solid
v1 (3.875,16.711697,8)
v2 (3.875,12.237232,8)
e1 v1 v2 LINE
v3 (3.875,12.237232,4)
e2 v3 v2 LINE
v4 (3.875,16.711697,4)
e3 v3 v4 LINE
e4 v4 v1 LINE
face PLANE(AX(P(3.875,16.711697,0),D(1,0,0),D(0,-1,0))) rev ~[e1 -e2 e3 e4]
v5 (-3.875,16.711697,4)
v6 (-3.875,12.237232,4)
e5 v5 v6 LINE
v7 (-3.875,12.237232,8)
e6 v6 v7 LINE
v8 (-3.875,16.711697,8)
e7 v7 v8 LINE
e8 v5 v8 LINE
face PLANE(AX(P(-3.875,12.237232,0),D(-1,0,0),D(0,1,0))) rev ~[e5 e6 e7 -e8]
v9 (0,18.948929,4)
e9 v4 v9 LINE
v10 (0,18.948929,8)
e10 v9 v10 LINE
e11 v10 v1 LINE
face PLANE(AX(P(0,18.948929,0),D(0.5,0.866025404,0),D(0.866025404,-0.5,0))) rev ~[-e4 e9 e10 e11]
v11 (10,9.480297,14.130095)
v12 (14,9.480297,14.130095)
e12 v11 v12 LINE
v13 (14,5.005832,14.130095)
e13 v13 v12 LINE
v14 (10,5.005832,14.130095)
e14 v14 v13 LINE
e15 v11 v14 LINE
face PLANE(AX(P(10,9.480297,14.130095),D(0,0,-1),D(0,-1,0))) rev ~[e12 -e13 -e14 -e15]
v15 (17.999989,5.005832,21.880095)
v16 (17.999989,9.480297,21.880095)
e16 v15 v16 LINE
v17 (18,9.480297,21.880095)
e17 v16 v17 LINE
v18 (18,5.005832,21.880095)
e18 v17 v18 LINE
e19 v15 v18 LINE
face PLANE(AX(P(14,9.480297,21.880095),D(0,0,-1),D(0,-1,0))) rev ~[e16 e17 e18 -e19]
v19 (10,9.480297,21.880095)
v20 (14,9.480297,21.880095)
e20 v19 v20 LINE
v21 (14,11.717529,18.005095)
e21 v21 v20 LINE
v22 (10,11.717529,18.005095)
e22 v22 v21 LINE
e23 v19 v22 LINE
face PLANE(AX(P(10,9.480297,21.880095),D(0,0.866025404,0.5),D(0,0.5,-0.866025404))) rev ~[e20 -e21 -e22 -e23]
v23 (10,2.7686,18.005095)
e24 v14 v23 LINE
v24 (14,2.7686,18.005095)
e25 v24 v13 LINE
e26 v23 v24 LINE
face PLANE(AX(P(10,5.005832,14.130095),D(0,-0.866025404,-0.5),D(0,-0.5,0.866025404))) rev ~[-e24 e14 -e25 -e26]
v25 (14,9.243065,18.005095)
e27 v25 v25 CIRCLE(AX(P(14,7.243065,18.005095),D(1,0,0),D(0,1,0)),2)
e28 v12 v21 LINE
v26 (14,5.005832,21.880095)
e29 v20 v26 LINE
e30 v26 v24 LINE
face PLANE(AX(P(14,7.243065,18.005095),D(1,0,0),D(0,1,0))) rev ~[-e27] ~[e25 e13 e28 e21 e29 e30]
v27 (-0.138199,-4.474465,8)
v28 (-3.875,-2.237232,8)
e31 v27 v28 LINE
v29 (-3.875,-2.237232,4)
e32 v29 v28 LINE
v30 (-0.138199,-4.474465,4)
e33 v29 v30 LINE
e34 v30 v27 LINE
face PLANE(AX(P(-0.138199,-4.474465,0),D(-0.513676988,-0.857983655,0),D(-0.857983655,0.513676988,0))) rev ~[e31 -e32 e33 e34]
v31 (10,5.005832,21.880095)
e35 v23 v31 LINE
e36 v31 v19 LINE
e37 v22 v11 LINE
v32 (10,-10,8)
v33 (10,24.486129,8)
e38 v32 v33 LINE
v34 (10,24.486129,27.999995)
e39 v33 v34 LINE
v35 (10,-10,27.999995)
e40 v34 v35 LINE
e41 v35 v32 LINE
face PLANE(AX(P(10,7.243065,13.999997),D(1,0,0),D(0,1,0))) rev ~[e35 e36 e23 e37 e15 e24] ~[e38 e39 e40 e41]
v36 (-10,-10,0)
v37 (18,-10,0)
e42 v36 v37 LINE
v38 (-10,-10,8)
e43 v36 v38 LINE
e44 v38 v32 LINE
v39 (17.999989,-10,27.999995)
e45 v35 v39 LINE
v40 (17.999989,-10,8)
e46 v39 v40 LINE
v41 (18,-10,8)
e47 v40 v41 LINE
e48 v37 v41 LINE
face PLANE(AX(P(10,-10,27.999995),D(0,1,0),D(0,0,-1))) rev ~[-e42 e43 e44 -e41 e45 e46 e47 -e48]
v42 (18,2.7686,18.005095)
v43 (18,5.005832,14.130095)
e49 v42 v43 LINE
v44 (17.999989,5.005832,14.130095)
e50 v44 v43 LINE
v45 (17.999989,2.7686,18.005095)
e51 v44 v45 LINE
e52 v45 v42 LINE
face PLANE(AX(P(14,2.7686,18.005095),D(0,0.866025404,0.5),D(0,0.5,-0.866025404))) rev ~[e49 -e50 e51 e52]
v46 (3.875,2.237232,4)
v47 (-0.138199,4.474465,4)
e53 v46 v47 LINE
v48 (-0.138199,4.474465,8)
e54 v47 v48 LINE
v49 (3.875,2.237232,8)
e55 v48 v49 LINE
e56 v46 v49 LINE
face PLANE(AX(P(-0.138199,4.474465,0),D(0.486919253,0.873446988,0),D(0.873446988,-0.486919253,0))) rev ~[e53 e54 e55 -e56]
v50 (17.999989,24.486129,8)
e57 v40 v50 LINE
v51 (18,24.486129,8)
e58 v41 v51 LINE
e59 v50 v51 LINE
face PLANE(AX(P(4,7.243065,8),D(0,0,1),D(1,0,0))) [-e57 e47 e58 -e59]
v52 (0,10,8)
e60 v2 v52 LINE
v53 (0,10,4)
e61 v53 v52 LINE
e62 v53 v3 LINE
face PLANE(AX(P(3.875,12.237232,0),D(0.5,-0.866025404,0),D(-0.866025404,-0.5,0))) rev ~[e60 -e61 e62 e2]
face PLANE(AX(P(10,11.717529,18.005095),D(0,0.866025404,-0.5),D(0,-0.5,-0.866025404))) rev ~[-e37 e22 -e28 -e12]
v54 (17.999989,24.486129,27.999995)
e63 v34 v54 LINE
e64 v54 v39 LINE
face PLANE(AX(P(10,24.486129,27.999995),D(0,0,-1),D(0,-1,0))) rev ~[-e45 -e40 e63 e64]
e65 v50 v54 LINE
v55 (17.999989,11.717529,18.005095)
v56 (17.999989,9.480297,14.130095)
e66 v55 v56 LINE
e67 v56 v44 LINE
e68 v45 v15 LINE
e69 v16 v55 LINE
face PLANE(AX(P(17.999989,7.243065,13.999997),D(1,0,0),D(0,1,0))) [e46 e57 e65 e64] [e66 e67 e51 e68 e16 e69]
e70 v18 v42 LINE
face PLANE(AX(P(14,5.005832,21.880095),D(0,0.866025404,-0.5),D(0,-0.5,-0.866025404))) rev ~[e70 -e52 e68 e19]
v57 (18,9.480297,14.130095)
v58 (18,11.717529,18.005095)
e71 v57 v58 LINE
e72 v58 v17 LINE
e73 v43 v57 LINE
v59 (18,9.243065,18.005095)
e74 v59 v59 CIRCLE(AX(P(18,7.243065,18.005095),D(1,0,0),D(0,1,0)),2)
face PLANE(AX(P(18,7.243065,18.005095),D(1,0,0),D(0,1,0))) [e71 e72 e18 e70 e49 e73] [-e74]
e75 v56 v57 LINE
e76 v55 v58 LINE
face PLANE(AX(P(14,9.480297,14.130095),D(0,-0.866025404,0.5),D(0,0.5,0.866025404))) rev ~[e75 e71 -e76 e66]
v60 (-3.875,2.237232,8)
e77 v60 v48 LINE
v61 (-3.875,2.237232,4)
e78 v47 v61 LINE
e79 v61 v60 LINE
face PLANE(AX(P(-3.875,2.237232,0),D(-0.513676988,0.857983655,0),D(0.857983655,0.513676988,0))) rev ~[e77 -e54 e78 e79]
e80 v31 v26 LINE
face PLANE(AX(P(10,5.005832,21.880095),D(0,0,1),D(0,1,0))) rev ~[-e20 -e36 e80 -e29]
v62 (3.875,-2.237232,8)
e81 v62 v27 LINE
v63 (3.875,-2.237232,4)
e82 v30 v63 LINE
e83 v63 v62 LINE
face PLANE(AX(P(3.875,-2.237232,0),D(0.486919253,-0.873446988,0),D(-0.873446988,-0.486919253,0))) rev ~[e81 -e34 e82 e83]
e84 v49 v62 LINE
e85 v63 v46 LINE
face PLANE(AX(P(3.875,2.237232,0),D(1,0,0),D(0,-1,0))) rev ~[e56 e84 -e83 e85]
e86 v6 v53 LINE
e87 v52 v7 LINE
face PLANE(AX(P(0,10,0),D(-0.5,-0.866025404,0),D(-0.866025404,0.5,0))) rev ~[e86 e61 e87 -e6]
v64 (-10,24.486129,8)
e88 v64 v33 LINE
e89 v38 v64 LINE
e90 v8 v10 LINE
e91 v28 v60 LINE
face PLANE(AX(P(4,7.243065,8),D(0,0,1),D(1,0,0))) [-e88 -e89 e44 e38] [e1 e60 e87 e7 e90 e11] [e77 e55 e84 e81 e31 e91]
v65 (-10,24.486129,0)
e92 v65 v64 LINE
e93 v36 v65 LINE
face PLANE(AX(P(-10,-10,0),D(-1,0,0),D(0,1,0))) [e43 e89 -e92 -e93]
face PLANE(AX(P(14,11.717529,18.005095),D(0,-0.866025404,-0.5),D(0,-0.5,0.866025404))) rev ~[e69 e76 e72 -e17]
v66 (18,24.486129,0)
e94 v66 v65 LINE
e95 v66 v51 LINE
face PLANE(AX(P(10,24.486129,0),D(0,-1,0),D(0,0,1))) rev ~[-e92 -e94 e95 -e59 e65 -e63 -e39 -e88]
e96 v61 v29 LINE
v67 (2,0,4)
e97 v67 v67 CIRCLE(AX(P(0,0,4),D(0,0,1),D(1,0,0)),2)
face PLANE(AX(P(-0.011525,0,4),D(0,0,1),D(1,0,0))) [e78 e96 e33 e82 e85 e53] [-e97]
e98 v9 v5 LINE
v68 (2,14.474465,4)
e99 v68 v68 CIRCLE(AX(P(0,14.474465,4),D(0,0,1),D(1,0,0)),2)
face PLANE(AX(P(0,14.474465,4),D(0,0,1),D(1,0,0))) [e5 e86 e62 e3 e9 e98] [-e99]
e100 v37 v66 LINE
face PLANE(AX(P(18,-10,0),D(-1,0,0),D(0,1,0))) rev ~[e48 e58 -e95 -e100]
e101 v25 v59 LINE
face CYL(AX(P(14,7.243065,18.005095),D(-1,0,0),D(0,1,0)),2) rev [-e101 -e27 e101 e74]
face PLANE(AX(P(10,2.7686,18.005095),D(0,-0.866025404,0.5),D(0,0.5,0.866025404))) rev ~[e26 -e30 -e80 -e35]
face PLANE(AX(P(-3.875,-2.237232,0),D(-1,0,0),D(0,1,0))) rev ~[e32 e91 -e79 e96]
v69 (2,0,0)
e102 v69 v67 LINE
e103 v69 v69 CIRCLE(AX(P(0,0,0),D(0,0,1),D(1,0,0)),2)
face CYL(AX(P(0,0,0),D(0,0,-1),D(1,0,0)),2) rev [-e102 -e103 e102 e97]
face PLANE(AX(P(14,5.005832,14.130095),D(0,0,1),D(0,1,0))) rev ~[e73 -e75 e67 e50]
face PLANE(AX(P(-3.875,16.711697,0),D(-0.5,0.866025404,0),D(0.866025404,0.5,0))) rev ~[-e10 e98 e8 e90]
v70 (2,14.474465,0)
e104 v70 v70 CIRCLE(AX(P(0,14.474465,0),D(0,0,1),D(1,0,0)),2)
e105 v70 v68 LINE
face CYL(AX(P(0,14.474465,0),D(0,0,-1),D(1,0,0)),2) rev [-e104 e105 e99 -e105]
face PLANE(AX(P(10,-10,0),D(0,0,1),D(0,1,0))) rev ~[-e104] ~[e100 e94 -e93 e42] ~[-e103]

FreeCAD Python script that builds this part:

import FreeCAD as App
import Part
import Sketcher
Q = App.Units.Quantity

doc = App.newDocument("Part")
body = doc.addObject("PartDesign::Body", "Body")

sketch1 = doc.addObject("Sketcher::SketchObject", "Sketch")
body.addObject(sketch1)
sketch1.AttachmentSupport = (doc.XY_Plane, [""])
sketch1.MapMode = "FlatFace"
sketch1.addGeometry(Part.LineSegment(App.Vector(-10, 24.5, 0), App.Vector(-10, -10, 0)), False)
sketch1.addGeometry(Part.LineSegment(App.Vector(-10, -10, 0), App.Vector(18, -10, 0)), False)
sketch1.addGeometry(Part.LineSegment(App.Vector(18, -10, 0), App.Vector(18, 24.5, 0)), False)
sketch1.addGeometry(Part.LineSegment(App.Vector(18, 24.5, 0), App.Vector(-10, 24.5, 0)), False)
sketch1.addGeometry(Part.LineSegment(App.Vector(-0.1, 4.5, 0), App.Vector(3.9, 2.2, 0)), False)
sketch1.addGeometry(Part.LineSegment(App.Vector(3.9, 2.2, 0), App.Vector(3.9, -2.2, 0)), False)
sketch1.addGeometry(Part.LineSegment(App.Vector(3.9, -2.2, 0), App.Vector(-0.1, -4.5, 0)), False)
sketch1.addGeometry(Part.LineSegment(App.Vector(-0.1, -4.5, 0), App.Vector(-3.9, -2.2, 0)), False)
sketch1.addGeometry(Part.LineSegment(App.Vector(-3.9, -2.2, 0), App.Vector(-3.9, 2.2, 0)), False)
sketch1.addGeometry(Part.LineSegment(App.Vector(-3.9, 2.2, 0), App.Vector(-0.1, 4.5, 0)), False)
sketch1.addGeometry(Part.LineSegment(App.Vector(0, 18.9, 0), App.Vector(3.9, 16.7, 0)), False)
sketch1.addGeometry(Part.LineSegment(App.Vector(3.9, 16.7, 0), App.Vector(3.9, 12.2, 0)), False)
sketch1.addGeometry(Part.LineSegment(App.Vector(3.9, 12.2, 0), App.Vector(0, 10, 0)), False)
sketch1.addGeometry(Part.LineSegment(App.Vector(0, 10, 0), App.Vector(-3.9, 12.2, 0)), False)
sketch1.addGeometry(Part.LineSegment(App.Vector(-3.9, 12.2, 0), App.Vector(-3.9, 16.7, 0)), False)
sketch1.addGeometry(Part.LineSegment(App.Vector(-3.9, 16.7, 0), App.Vector(0, 18.9, 0)), False)
sketch1.addConstraint(Sketcher.Constraint("Coincident", 0, 2, 1, 1))
sketch1.addConstraint(Sketcher.Constraint("Coincident", 1, 2, 2, 1))
sketch1.addConstraint(Sketcher.Constraint("Coincident", 2, 2, 3, 1))
sketch1.addConstraint(Sketcher.Constraint("Coincident", 3, 2, 0, 1))
sketch1.addConstraint(Sketcher.Constraint("Coincident", 4, 2, 5, 1))
sketch1.addConstraint(Sketcher.Constraint("Coincident", 5, 2, 6, 1))
sketch1.addConstraint(Sketcher.Constraint("Coincident", 6, 2, 7, 1))
sketch1.addConstraint(Sketcher.Constraint("Coincident", 7, 2, 8, 1))
sketch1.addConstraint(Sketcher.Constraint("Coincident", 8, 2, 9, 1))
sketch1.addConstraint(Sketcher.Constraint("Coincident", 9, 2, 4, 1))
sketch1.addConstraint(Sketcher.Constraint("Coincident", 10, 2, 11, 1))
sketch1.addConstraint(Sketcher.Constraint("Coincident", 11, 2, 12, 1))
sketch1.addConstraint(Sketcher.Constraint("Coincident", 12, 2, 13, 1))
sketch1.addConstraint(Sketcher.Constraint("Coincident", 13, 2, 14, 1))
sketch1.addConstraint(Sketcher.Constraint("Coincident", 14, 2, 15, 1))
sketch1.addConstraint(Sketcher.Constraint("Coincident", 15, 2, 10, 1))
sketch1.addConstraint(Sketcher.Constraint("Vertical", 0))
sketch1.addConstraint(Sketcher.Constraint("Horizontal", 1))
sketch1.addConstraint(Sketcher.Constraint("Vertical", 2))
sketch1.addConstraint(Sketcher.Constraint("Horizontal", 3))
sketch1.addConstraint(Sketcher.Constraint("Vertical", 5))
sketch1.addConstraint(Sketcher.Constraint("Vertical", 8))
sketch1.addConstraint(Sketcher.Constraint("Vertical", 11))
sketch1.addConstraint(Sketcher.Constraint("Vertical", 14))
sketch1.addConstraint(Sketcher.Constraint("Symmetric", 4, 2, 7, 2, -1, 1))
sketch1.addConstraint(Sketcher.Constraint("Symmetric", 11, 2, 13, 2, -2))
sketch1.addConstraint(Sketcher.Constraint("Symmetric", 6, 2, 9, 2, -1))
sketch1.addConstraint(Sketcher.Constraint("PointOnObject", 12, 2, -2))
sketch1.addConstraint(Sketcher.Constraint("PointOnObject", 15, 2, -2))
sketch1.addConstraint(Sketcher.Constraint("Parallel", 10, 13))
sketch1.addConstraint(Sketcher.Constraint("Parallel", 12, 15))
sketch1.addConstraint(Sketcher.Constraint("Horizontal", 5, 2, 7, 2))
sketch1.addConstraint(Sketcher.Constraint("Horizontal", 4, 2, 8, 2))
sketch1.addConstraint(Sketcher.Constraint("Vertical", 5, 2, 10, 2))
sketch1.addConstraint(Sketcher.Constraint("Equal", 8, 11))
sketch1.addConstraint(Sketcher.Constraint("DistanceX", 1, 1, 1, 2, 28.0))
sketch1.addConstraint(Sketcher.Constraint("Angle", 10, Q("-30 deg")))
sketch1.addConstraint(Sketcher.Constraint("DistanceX", 0, 2, -1, 1, 10.0))
sketch1.addConstraint(Sketcher.Constraint("DistanceY", 0, 2, -1, 1, 10.0))
sketch1.addConstraint(Sketcher.Constraint("DistanceY", -1, 1, 12, 2, 10.0))
sketch1.addConstraint(Sketcher.Constraint("DistanceY", 4, 2, 11, 2, 10.0))
sketch1.addConstraint(Sketcher.Constraint("DistanceX", 7, 2, 5, 2, 7.75))
sketch1.addConstraint(Sketcher.Constraint("DistanceY", 0, 2, 0, 1, 34.486129))
sketch1.addConstraint(Sketcher.Constraint("DistanceX", 6, 2, -1, 1, 0.138199))
sketch1.addConstraint(Sketcher.Constraint("Distance", 7, 4.355329))
pad1 = doc.addObject("PartDesign::Pad", "Pad")
body.addObject(pad1)
pad1.Profile = sketch1
pad1.Length = 8

sketch2 = doc.addObject("Sketcher::SketchObject", "Sketch001")
body.addObject(sketch2)
sketch2.AttachmentSupport = (doc.XY_Plane, [""])
sketch2.MapMode = "FlatFace"
sketch2.addGeometry(Part.LineSegment(App.Vector(0, 10, 0), App.Vector(3.9, 12.2, 0)), False)
sketch2.addGeometry(Part.LineSegment(App.Vector(3.9, 12.2, 0), App.Vector(3.9, 16.7, 0)), False)
sketch2.addGeometry(Part.LineSegment(App.Vector(3.9, 16.7, 0), App.Vector(0, 18.9, 0)), False)
sketch2.addGeometry(Part.LineSegment(App.Vector(0, 18.9, 0), App.Vector(-3.9, 16.7, 0)), False)
sketch2.addGeometry(Part.LineSegment(App.Vector(-3.9, 16.7, 0), App.Vector(-3.9, 12.2, 0)), False)
sketch2.addGeometry(Part.LineSegment(App.Vector(-3.9, 12.2, 0), App.Vector(0, 10, 0)), False)
sketch2.addGeometry(Part.Circle(App.Vector(0, 14.5, 0), App.Vector(0, 0, 1), 2), False)
sketch2.addGeometry(Part.LineSegment(App.Vector(-0.1, -4.5, 0), App.Vector(3.9, -2.2, 0)), False)
sketch2.addGeometry(Part.LineSegment(App.Vector(3.9, -2.2, 0), App.Vector(3.9, 2.2, 0)), False)
sketch2.addGeometry(Part.LineSegment(App.Vector(3.9, 2.2, 0), App.Vector(-0.1, 4.5, 0)), False)
sketch2.addGeometry(Part.LineSegment(App.Vector(-0.1, 4.5, 0), App.Vector(-3.9, 2.2, 0)), False)
sketch2.addGeometry(Part.LineSegment(App.Vector(-3.9, 2.2, 0), App.Vector(-3.9, -2.2, 0)), False)
sketch2.addGeometry(Part.LineSegment(App.Vector(-3.9, -2.2, 0), App.Vector(-0.1, -4.5, 0)), False)
sketch2.addGeometry(Part.Circle(App.Vector(0, 0, 0), App.Vector(0, 0, 1), 2), False)
sketch2.addConstraint(Sketcher.Constraint("Coincident", 0, 2, 1, 1))
sketch2.addConstraint(Sketcher.Constraint("Coincident", 1, 2, 2, 1))
sketch2.addConstraint(Sketcher.Constraint("Coincident", 2, 2, 3, 1))
sketch2.addConstraint(Sketcher.Constraint("Coincident", 3, 2, 4, 1))
sketch2.addConstraint(Sketcher.Constraint("Coincident", 4, 2, 5, 1))
sketch2.addConstraint(Sketcher.Constraint("Coincident", 5, 2, 0, 1))
sketch2.addConstraint(Sketcher.Constraint("Coincident", 7, 2, 8, 1))
sketch2.addConstraint(Sketcher.Constraint("Coincident", 8, 2, 9, 1))
sketch2.addConstraint(Sketcher.Constraint("Coincident", 9, 2, 10, 1))
sketch2.addConstraint(Sketcher.Constraint("Coincident", 10, 2, 11, 1))
sketch2.addConstraint(Sketcher.Constraint("Coincident", 11, 2, 12, 1))
sketch2.addConstraint(Sketcher.Constraint("Coincident", 12, 2, 7, 1))
sketch2.addConstraint(Sketcher.Constraint("Vertical", 1))
sketch2.addConstraint(Sketcher.Constraint("Vertical", 4))
sketch2.addConstraint(Sketcher.Constraint("Vertical", 8))
sketch2.addConstraint(Sketcher.Constraint("Vertical", 11))
sketch2.addConstraint(Sketcher.Constraint("Coincident", 13, 3, -1, 1))
sketch2.addConstraint(Sketcher.Constraint("Equal", 6, 13))
sketch2.addConstraint(Sketcher.Constraint("Symmetric", 7, 2, 10, 2, -1, 1))
sketch2.addConstraint(Sketcher.Constraint("Symmetric", 1, 2, 3, 2, -2))
sketch2.addConstraint(Sketcher.Constraint("Symmetric", 9, 2, 12, 2, -1))
sketch2.addConstraint(Sketcher.Constraint("PointOnObject", 6, 3, -2))
sketch2.addConstraint(Sketcher.Constraint("PointOnObject", 2, 2, -2))
sketch2.addConstraint(Sketcher.Constraint("PointOnObject", 5, 2, -2))
sketch2.addConstraint(Sketcher.Constraint("Parallel", 0, 3))
sketch2.addConstraint(Sketcher.Constraint("Parallel", 2, 5))
sketch2.addConstraint(Sketcher.Constraint("Horizontal", 8, 2, 10, 2))
sketch2.addConstraint(Sketcher.Constraint("Horizontal", 7, 2, 11, 2))
sketch2.addConstraint(Sketcher.Constraint("Vertical", 1, 2, 7, 2))
sketch2.addConstraint(Sketcher.Constraint("Equal", 4, 8))
sketch2.addConstraint(Sketcher.Constraint("Diameter", 6, 4.0))
sketch2.addConstraint(Sketcher.Constraint("Angle", 0, Q("30 deg")))
sketch2.addConstraint(Sketcher.Constraint("DistanceY", -1, 1, 5, 2, 10.0))
sketch2.addConstraint(Sketcher.Constraint("DistanceY", 8, 2, 0, 2, 10.0))
sketch2.addConstraint(Sketcher.Constraint("DistanceX", 3, 2, 1, 2, 7.75))
sketch2.addConstraint(Sketcher.Constraint("DistanceX", 9, 2, -1, 1, 0.138199))
sketch2.addConstraint(Sketcher.Constraint("Distance", 10, 4.355329))
sketch2.addConstraint(Sketcher.Constraint("DistanceY", -1, 1, 6, 3, 14.474465))
pad2 = doc.addObject("PartDesign::Pad", "Pad001")
body.addObject(pad2)
pad2.Profile = sketch2
pad2.Length = 4

sketch3 = doc.addObject("Sketcher::SketchObject", "Sketch002")
body.addObject(sketch3)
sketch3.AttachmentSupport = (doc.YZ_Plane, [""])
sketch3.MapMode = "FlatFace"
sketch3.AttachmentOffset = App.Placement(App.Vector(0, 0, 10), App.Rotation())
sketch3.addGeometry(Part.LineSegment(App.Vector(-10, 28, 0), App.Vector(-10, 0, 0)), False)
sketch3.addGeometry(Part.LineSegment(App.Vector(-10, 0, 0), App.Vector(24.5, 0, 0)), False)
sketch3.addGeometry(Part.LineSegment(App.Vector(24.5, 0, 0), App.Vector(24.5, 28, 0)), False)
sketch3.addGeometry(Part.LineSegment(App.Vector(24.5, 28, 0), App.Vector(-10, 28, 0)), False)
sketch3.addGeometry(Part.LineSegment(App.Vector(5, 14.1, 0), App.Vector(2.8, 18, 0)), False)
sketch3.addGeometry(Part.LineSegment(App.Vector(2.8, 18, 0), App.Vector(5, 21.9, 0)), False)
sketch3.addGeometry(Part.LineSegment(App.Vector(5, 21.9, 0), App.Vector(9.5, 21.9, 0)), False)
sketch3.addGeometry(Part.LineSegment(App.Vector(9.5, 21.9, 0), App.Vector(11.7, 18, 0)), False)
sketch3.addGeometry(Part.LineSegment(App.Vector(11.7, 18, 0), App.Vector(9.5, 14.1, 0)), False)
sketch3.addGeometry(Part.LineSegment(App.Vector(9.5, 14.1, 0), App.Vector(5, 14.1, 0)), False)
sketch3.addConstraint(Sketcher.Constraint("Coincident", 0, 2, 1, 1))
sketch3.addConstraint(Sketcher.Constraint("Coincident", 1, 2, 2, 1))
sketch3.addConstraint(Sketcher.Constraint("Coincident", 2, 2, 3, 1))
sketch3.addConstraint(Sketcher.Constraint("Coincident", 3, 2, 0, 1))
sketch3.addConstraint(Sketcher.Constraint("Coincident", 4, 2, 5, 1))
sketch3.addConstraint(Sketcher.Constraint("Coincident", 5, 2, 6, 1))
sketch3.addConstraint(Sketcher.Constraint("Coincident", 6, 2, 7, 1))
sketch3.addConstraint(Sketcher.Constraint("Coincident", 7, 2, 8, 1))
sketch3.addConstraint(Sketcher.Constraint("Coincident", 8, 2, 9, 1))
sketch3.addConstraint(Sketcher.Constraint("Coincident", 9, 2, 4, 1))
sketch3.addConstraint(Sketcher.Constraint("Vertical", 0))
sketch3.addConstraint(Sketcher.Constraint("Horizontal", 1))
sketch3.addConstraint(Sketcher.Constraint("Vertical", 2))
sketch3.addConstraint(Sketcher.Constraint("Horizontal", 3))
sketch3.addConstraint(Sketcher.Constraint("Horizontal", 6))
sketch3.addConstraint(Sketcher.Constraint("Horizontal", 9))
sketch3.addConstraint(Sketcher.Constraint("PointOnObject", 0, 2, -1))
sketch3.addConstraint(Sketcher.Constraint("Parallel", 4, 7))
sketch3.addConstraint(Sketcher.Constraint("Parallel", 5, 8))
sketch3.addConstraint(Sketcher.Constraint("Horizontal", 4, 2, 7, 2))
sketch3.addConstraint(Sketcher.Constraint("Vertical", 6, 2, 8, 2))
sketch3.addConstraint(Sketcher.Constraint("Vertical", 5, 2, 9, 2))
sketch3.addConstraint(Sketcher.Constraint("Angle", 4, Q("120 deg")))
sketch3.addConstraint(Sketcher.Constraint("DistanceX", 0, 2, -1, 1, 10.0))
sketch3.addConstraint(Sketcher.Constraint("DistanceY", 8, 2, 6, 2, 7.75))
sketch3.addConstraint(Sketcher.Constraint("DistanceX", 1, 1, 1, 2, 34.486129))
sketch3.addConstraint(Sketcher.Constraint("DistanceX", -1, 1, 4, 2, 2.7686))
sketch3.addConstraint(Sketcher.Constraint("DistanceY", 4, 2, 3, 2, 9.9949))
sketch3.addConstraint(Sketcher.Constraint("DistanceX", 7, 2, 2, 2, 12.7686))
sketch3.addConstraint(Sketcher.Constraint("DistanceY", 0, 2, 0, 1, 27.999995))
pad3 = doc.addObject("PartDesign::Pad", "Pad002")
body.addObject(pad3)
pad3.Profile = sketch3
pad3.Length = 7.999989

sketch4 = doc.addObject("Sketcher::SketchObject", "Sketch003")
body.addObject(sketch4)
sketch4.AttachmentSupport = (doc.YZ_Plane, [""])
sketch4.MapMode = "FlatFace"
sketch4.AttachmentOffset = App.Placement(App.Vector(0, 0, 14), App.Rotation())
sketch4.addGeometry(Part.LineSegment(App.Vector(9.5, 21.9, 0), App.Vector(5, 21.9, 0)), False)
sketch4.addGeometry(Part.LineSegment(App.Vector(5, 21.9, 0), App.Vector(2.8, 18, 0)), False)
sketch4.addGeometry(Part.LineSegment(App.Vector(2.8, 18, 0), App.Vector(5, 14.1, 0)), False)
sketch4.addGeometry(Part.LineSegment(App.Vector(5, 14.1, 0), App.Vector(9.5, 14.1, 0)), False)
sketch4.addGeometry(Part.LineSegment(App.Vector(9.5, 14.1, 0), App.Vector(11.7, 18, 0)), False)
sketch4.addGeometry(Part.LineSegment(App.Vector(11.7, 18, 0), App.Vector(9.5, 21.9, 0)), False)
sketch4.addGeometry(Part.Circle(App.Vector(7.2, 18, 0), App.Vector(0, 0, 1), 2), False)
sketch4.addConstraint(Sketcher.Constraint("Coincident", 0, 2, 1, 1))
sketch4.addConstraint(Sketcher.Constraint("Coincident", 1, 2, 2, 1))
sketch4.addConstraint(Sketcher.Constraint("Coincident", 2, 2, 3, 1))
sketch4.addConstraint(Sketcher.Constraint("Coincident", 3, 2, 4, 1))
sketch4.addConstraint(Sketcher.Constraint("Coincident", 4, 2, 5, 1))
sketch4.addConstraint(Sketcher.Constraint("Coincident", 5, 2, 0, 1))
sketch4.addConstraint(Sketcher.Constraint("Horizontal", 0))
sketch4.addConstraint(Sketcher.Constraint("Horizontal", 3))
sketch4.addConstraint(Sketcher.Constraint("Parallel", 1, 4))
sketch4.addConstraint(Sketcher.Constraint("Parallel", 2, 5))
sketch4.addConstraint(Sketcher.Constraint("Horizontal", 6, 3, 1, 2))
sketch4.addConstraint(Sketcher.Constraint("Horizontal", 1, 2, 4, 2))
sketch4.addConstraint(Sketcher.Constraint("Vertical", 0, 2, 2, 2))
sketch4.addConstraint(Sketcher.Constraint("Vertical", 3, 2, 5, 2))
sketch4.addConstraint(Sketcher.Constraint("Diameter", 6, 4.0))
sketch4.addConstraint(Sketcher.Constraint("Angle", 1, Q("-120 deg")))
sketch4.addConstraint(Sketcher.Constraint("DistanceY", 2, 2, 0, 2, 7.75))
sketch4.addConstraint(Sketcher.Constraint("DistanceX", -1, 1, 1, 2, 2.7686))
sketch4.addConstraint(Sketcher.Constraint("DistanceX", 0, 2, 0, 1, 4.474465))
sketch4.addConstraint(Sketcher.Constraint("DistanceX", -1, 1, 6, 3, 7.243065))
sketch4.addConstraint(Sketcher.Constraint("DistanceY", -1, 1, 6, 3, 18.005095))
pad4 = doc.addObject("PartDesign::Pad", "Pad003")
body.addObject(pad4)
pad4.Profile = sketch4
pad4.Length = 4

doc.recompute()
